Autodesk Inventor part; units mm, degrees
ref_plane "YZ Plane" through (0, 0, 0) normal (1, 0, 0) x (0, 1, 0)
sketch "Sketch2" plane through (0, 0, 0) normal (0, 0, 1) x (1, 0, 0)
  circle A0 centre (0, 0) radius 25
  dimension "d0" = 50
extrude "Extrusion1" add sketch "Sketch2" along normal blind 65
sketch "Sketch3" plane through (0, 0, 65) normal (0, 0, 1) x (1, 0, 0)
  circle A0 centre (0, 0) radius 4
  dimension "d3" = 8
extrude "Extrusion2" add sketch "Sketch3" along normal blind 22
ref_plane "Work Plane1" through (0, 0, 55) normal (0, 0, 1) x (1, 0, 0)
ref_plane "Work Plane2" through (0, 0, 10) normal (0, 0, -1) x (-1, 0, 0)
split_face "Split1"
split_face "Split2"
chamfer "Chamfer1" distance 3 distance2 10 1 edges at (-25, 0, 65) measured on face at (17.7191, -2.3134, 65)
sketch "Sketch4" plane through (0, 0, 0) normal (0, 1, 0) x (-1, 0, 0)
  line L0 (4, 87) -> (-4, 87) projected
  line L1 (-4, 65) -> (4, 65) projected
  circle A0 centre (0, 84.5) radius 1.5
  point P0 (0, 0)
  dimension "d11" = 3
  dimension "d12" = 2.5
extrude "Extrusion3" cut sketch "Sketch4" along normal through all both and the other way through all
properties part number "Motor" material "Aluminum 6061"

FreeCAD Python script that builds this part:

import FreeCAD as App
import Part
import Sketcher

V = App.Vector


def edges_at(feature, points):
    """Names of the edges that pass closest to the given points."""
    edges = feature.Shape.Edges
    near = lambda p: min(range(len(edges)), key=lambda i: edges[i].distToShape(Part.Vertex(*p))[0])
    return sorted({f"Edge{near(p) + 1}" for p in points})

doc = App.newDocument("Part")
body = doc.addObject("PartDesign::Body", "Body")

sketch1 = body.newObject("Sketcher::SketchObject", "Sketch")
sketch1.AttachmentSupport = (doc.getObject("XY_Plane"), [""])
sketch1.MapMode = "FlatFace"
sketch1.addGeometry(Part.Circle(V(0, 0, 0), V(0, 0, 1), 25), False)
sketch1.addConstraint([
    Sketcher.Constraint("Coincident", 0, 3, -1, 1),
    Sketcher.Constraint("Diameter", 0, 50.0),
])
pad1 = body.newObject("PartDesign::Pad", "Pad")
pad1.Profile = sketch1
pad1.Length = 65

sketch2 = body.newObject("Sketcher::SketchObject", "Sketch001")
sketch2.AttachmentSupport = (doc.getObject("XY_Plane"), [""])
sketch2.MapMode = "FlatFace"
sketch2.AttachmentOffset = App.Placement(V(0, 0, 65), App.Rotation())
sketch2.addGeometry(Part.Circle(V(0, 0, 0), V(0, 0, 1), 4), False)
sketch2.addConstraint([
    Sketcher.Constraint("Coincident", 0, 3, -1, 1),
    Sketcher.Constraint("Diameter", 0, 8.0),
])
pad2 = body.newObject("PartDesign::Pad", "Pad001")
pad2.Profile = sketch2
pad2.Length = 22
doc.recompute()

chamfer = body.newObject("PartDesign::Chamfer", "Chamfer")
chamfer.Base = (pad2, edges_at(pad2, [(-25, 0, 65)]))
chamfer.ChamferType = "Two distances"
chamfer.Size = 3
chamfer.Size2 = 10
chamfer.FlipDirection = True

sketch3 = body.newObject("Sketcher::SketchObject", "Sketch002")
sketch3.AttachmentSupport = (doc.getObject("XZ_Plane"), [""])
sketch3.MapMode = "FlatFace"
sketch3.addGeometry(Part.Circle(V(0, 84.5, 0), V(0, 0, 1), 1.5), False)
sketch3.addConstraint([
    Sketcher.Constraint("PointOnObject", 0, 3, -2),
    Sketcher.Constraint("Diameter", 0, 3.0),
    Sketcher.Constraint("DistanceY", -1, 1, 0, 3, 84.5),
])
pocket1 = body.newObject("PartDesign::Pocket", "Pocket")
pocket1.Profile = sketch3
pocket1.Type = "ThroughAll"
pocket1.Midplane = True

doc.recompute()
